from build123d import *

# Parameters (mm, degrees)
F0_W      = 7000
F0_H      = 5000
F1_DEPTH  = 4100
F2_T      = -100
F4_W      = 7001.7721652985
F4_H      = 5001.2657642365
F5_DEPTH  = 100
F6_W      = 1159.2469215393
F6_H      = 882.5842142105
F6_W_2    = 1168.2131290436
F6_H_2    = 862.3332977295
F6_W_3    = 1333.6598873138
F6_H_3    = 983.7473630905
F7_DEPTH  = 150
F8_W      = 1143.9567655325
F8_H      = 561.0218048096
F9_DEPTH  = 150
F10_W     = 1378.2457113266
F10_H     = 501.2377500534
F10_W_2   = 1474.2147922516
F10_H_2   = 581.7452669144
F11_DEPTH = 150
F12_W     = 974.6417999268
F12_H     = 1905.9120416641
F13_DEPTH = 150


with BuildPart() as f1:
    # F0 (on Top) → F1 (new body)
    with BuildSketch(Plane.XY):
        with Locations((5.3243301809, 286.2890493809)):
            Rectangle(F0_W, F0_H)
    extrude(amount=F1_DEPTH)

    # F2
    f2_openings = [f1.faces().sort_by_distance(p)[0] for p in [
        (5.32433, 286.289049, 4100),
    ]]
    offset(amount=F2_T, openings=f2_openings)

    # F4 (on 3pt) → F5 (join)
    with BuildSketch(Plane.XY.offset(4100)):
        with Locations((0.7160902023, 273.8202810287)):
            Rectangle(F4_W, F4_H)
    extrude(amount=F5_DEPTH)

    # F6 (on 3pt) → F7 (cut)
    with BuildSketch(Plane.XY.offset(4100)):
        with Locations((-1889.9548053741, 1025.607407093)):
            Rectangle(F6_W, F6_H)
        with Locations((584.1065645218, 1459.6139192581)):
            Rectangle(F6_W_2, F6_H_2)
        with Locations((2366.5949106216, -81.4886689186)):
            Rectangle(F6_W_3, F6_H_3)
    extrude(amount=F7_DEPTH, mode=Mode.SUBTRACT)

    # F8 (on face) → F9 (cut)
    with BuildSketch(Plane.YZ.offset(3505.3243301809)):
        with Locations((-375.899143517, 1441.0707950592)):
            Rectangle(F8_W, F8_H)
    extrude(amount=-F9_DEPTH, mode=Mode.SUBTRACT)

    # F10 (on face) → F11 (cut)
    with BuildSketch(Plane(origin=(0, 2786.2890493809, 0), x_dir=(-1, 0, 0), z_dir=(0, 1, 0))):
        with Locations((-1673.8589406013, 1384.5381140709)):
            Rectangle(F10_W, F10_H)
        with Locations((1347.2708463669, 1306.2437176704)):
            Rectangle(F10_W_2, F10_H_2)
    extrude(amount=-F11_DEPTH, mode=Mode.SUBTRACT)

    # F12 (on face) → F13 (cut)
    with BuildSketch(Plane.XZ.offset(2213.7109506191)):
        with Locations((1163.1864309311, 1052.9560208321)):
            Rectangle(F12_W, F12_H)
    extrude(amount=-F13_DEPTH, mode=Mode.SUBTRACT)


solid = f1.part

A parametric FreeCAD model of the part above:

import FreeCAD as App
import Part
import Sketcher

V = App.Vector


def faces_at(feature, points):
    """Names of the faces that lie closest to the given points."""
    faces = feature.Shape.Faces
    near = lambda p: min(range(len(faces)), key=lambda i: faces[i].distToShape(Part.Vertex(*p))[0])
    return sorted({f"Face{near(p) + 1}" for p in points})


def add_polygon(sketch, points):
    """Adds a closed chain of lines whose ends are joined by coincident constraints."""
    first, n = sketch.GeometryCount, len(points)
    for a, b in zip(points, points[1:] + points[:1]):
        sketch.addGeometry(Part.LineSegment(App.Vector(*a, 0), App.Vector(*b, 0)), False)
    for i in range(n):
        sketch.addConstraint(Sketcher.Constraint("Coincident", first + i, 2, first + (i + 1) % n, 1))

doc = App.newDocument("Part")
body = doc.addObject("PartDesign::Body", "Body")

# Sketch on XY plane
sketch1 = body.newObject("Sketcher::SketchObject", "Sketch")
sketch1.AttachmentSupport = (doc.getObject("XY_Plane"), [""])
sketch1.MapMode = "FlatFace"
add_polygon(sketch1, [(-3494.67567, 2786.289049), (-3494.67567, -2213.710951), (3505.32433, -2213.710951), (3505.32433, 2786.289049)])  # lines 0-3
sketch1.addConstraint([
    Sketcher.Constraint("Vertical", 0),
    Sketcher.Constraint("Horizontal", 1),
    Sketcher.Constraint("Vertical", 2),
    Sketcher.Constraint("Horizontal", 3),
    Sketcher.Constraint("DistanceX", 1, 1, 1, 2, 7000.0),
    Sketcher.Constraint("DistanceY", 0, 2, 0, 1, 5000.0),
    Sketcher.Constraint("DistanceX", 0, 2, -1, 1, 3494.67567),
    Sketcher.Constraint("DistanceY", 0, 2, -1, 1, 2213.710951),
])
pad1 = body.newObject("PartDesign::Pad", "Pad")
pad1.Profile = sketch1
pad1.Length = 4100
doc.recompute()

thickness = body.newObject("PartDesign::Thickness", "Thickness")
thickness.Base = (pad1, faces_at(pad1, [(5.324, 286.289, 4100)]))
thickness.Value = 100
thickness.Reversed = True
thickness.Join = "Arc"

# Sketch on XY plane
sketch2 = body.newObject("Sketcher::SketchObject", "Sketch001")
sketch2.AttachmentSupport = (doc.getObject("XY_Plane"), [""])
sketch2.MapMode = "FlatFace"
sketch2.AttachmentOffset = App.Placement(V(0, 0, 4100), App.Rotation())
add_polygon(sketch2, [(-3500.169992, 2774.453163), (-3500.169992, -2226.812601), (3501.602173, -2226.812601), (3501.602173, 2774.453163)])  # lines 0-3
sketch2.addConstraint([
    Sketcher.Constraint("Vertical", 0),
    Sketcher.Constraint("Horizontal", 1),
    Sketcher.Constraint("Vertical", 2),
    Sketcher.Constraint("Horizontal", 3),
    Sketcher.Constraint("DistanceY", 0, 2, -1, 1, 2226.812601),
    Sketcher.Constraint("DistanceX", 1, 1, 1, 2, 7001.772165),
    Sketcher.Constraint("DistanceY", 0, 2, 0, 1, 5001.265764),
    Sketcher.Constraint("DistanceX", 0, 2, -1, 1, 3500.169992),
])
pad2 = body.newObject("PartDesign::Pad", "Pad001")
pad2.Profile = sketch2
pad2.Length = 100

# Sketch on XY plane
sketch3 = body.newObject("Sketcher::SketchObject", "Sketch002")
sketch3.AttachmentSupport = (doc.getObject("XY_Plane"), [""])
sketch3.MapMode = "FlatFace"
sketch3.AttachmentOffset = App.Placement(V(0, 0, 4100), App.Rotation())
add_polygon(sketch3, [(-2469.578266, 1466.899514), (-2469.578266, 584.3153), (-1310.331345, 584.3153), (-1310.331345, 1466.899514)])  # lines 0-3
add_polygon(sketch3, [(0, 1890.780568), (0, 1028.44727), (1168.213129, 1028.44727), (1168.213129, 1890.780568)])  # lines 4-7
add_polygon(sketch3, [(1699.764967, 410.385013), (1699.764967, -573.36235), (3033.424854, -573.36235), (3033.424854, 410.385013)])  # lines 8-11
sketch3.addConstraint([
    Sketcher.Constraint("Vertical", 0),
    Sketcher.Constraint("Horizontal", 1),
    Sketcher.Constraint("Vertical", 2),
    Sketcher.Constraint("Horizontal", 3),
    Sketcher.Constraint("Vertical", 4),
    Sketcher.Constraint("Horizontal", 5),
    Sketcher.Constraint("Vertical", 6),
    Sketcher.Constraint("Horizontal", 7),
    Sketcher.Constraint("Vertical", 8),
    Sketcher.Constraint("Horizontal", 9),
    Sketcher.Constraint("Vertical", 10),
    Sketcher.Constraint("Horizontal", 11),
    Sketcher.Constraint("PointOnObject", 4, 2, -2),
    Sketcher.Constraint("DistanceX", 1, 1, 1, 2, 1159.246922),
    Sketcher.Constraint("DistanceX", 5, 1, 5, 2, 1168.213129),
    Sketcher.Constraint("DistanceY", -1, 1, 0, 2, 584.3153),
    Sketcher.Constraint("DistanceX", 9, 1, 9, 2, 1333.659887),
    Sketcher.Constraint("DistanceY", 0, 2, 0, 1, 882.584214),
    Sketcher.Constraint("DistanceY", 4, 2, 4, 1, 862.333298),
    Sketcher.Constraint("DistanceY", 8, 2, 8, 1, 983.747363),
    Sketcher.Constraint("DistanceY", -1, 1, 4, 2, 1028.44727),
    Sketcher.Constraint("DistanceY", 8, 2, -1, 1, 573.36235),
    Sketcher.Constraint("DistanceX", 1, 2, 8, 2, 3010.096312),
    Sketcher.Constraint("DistanceX", 0, 2, -1, 1, 2469.578266),
])
pocket1 = body.newObject("PartDesign::Pocket", "Pocket")
pocket1.Profile = sketch3
pocket1.Length = 150
pocket1.Reversed = True

# Sketch on YZ plane
sketch4 = body.newObject("Sketcher::SketchObject", "Sketch003")
sketch4.AttachmentSupport = (doc.getObject("YZ_Plane"), [""])
sketch4.MapMode = "FlatFace"
sketch4.AttachmentOffset = App.Placement(V(0, 0, 3505.32433), App.Rotation())
add_polygon(sketch4, [(-947.877526, 1721.581697), (-947.877526, 1160.559893), (196.079239, 1160.559893), (196.079239, 1721.581697)])  # lines 0-3
sketch4.addConstraint([
    Sketcher.Constraint("Vertical", 0),
    Sketcher.Constraint("Horizontal", 1),
    Sketcher.Constraint("Vertical", 2),
    Sketcher.Constraint("Horizontal", 3),
    Sketcher.Constraint("DistanceX", 1, 1, 1, 2, 1143.956766),
    Sketcher.Constraint("DistanceY", 0, 2, 0, 1, 561.021805),
    Sketcher.Constraint("DistanceX", -1, 1, 1, 2, 196.079239),
    Sketcher.Constraint("DistanceY", -1, 1, 0, 2, 1160.559893),
])
pocket2 = body.newObject("PartDesign::Pocket", "Pocket001")
pocket2.Profile = sketch4
pocket2.Length = 150

# Sketch on XZ plane
sketch5 = body.newObject("Sketcher::SketchObject", "Sketch004")
sketch5.AttachmentSupport = (doc.getObject("XZ_Plane"), [""])
sketch5.MapMode = "FlatFace"
sketch5.AttachmentOffset = App.Placement(V(0, 0, -2786.289049), App.Rotation())
add_polygon(sketch5, [(2362.981796, 1635.156989), (2362.981796, 1133.919239), (984.736085, 1133.919239), (984.736085, 1635.156989)])  # lines 0-3
add_polygon(sketch5, [(-610.16345, 1597.116351), (-610.16345, 1015.371084), (-2084.378242, 1015.371084), (-2084.378242, 1597.116351)])  # lines 4-7
sketch5.addConstraint([
    Sketcher.Constraint("Vertical", 0),
    Sketcher.Constraint("Horizontal", 1),
    Sketcher.Constraint("Vertical", 2),
    Sketcher.Constraint("Horizontal", 3),
    Sketcher.Constraint("Vertical", 4),
    Sketcher.Constraint("Horizontal", 5),
    Sketcher.Constraint("Vertical", 6),
    Sketcher.Constraint("Horizontal", 7),
    Sketcher.Constraint("DistanceX", 1, 2, 1, 1, 1378.245711),
    Sketcher.Constraint("DistanceY", 0, 2, 0, 1, 501.23775),
    Sketcher.Constraint("DistanceX", 5, 2, 5, 1, 1474.214792),
    Sketcher.Constraint("DistanceY", 4, 2, 4, 1, 581.745267),
    Sketcher.Constraint("DistanceY", -1, 1, 0, 2, 1133.919239),
    Sketcher.Constraint("DistanceX", 4, 2, -1, 1, 610.16345),
    Sketcher.Constraint("DistanceY", -1, 1, 6, 2, 1597.116351),
    Sketcher.Constraint("DistanceX", 5, 2, 0, 2, 4447.360039),
])
pocket3 = body.newObject("PartDesign::Pocket", "Pocket002")
pocket3.Profile = sketch5
pocket3.Length = 150
pocket3.Reversed = True

# Sketch on XZ plane
sketch6 = body.newObject("Sketcher::SketchObject", "Sketch005")
sketch6.AttachmentSupport = (doc.getObject("XZ_Plane"), [""])
sketch6.MapMode = "FlatFace"
sketch6.AttachmentOffset = App.Placement(V(0, 0, 2213.710951), App.Rotation())
add_polygon(sketch6, [(675.865531, 2005.912042), (675.865531, 100), (1650.507331, 100), (1650.507331, 2005.912042)])  # lines 0-3
sketch6.addConstraint([
    Sketcher.Constraint("Vertical", 0),
    Sketcher.Constraint("Horizontal", 1),
    Sketcher.Constraint("Vertical", 2),
    Sketcher.Constraint("Horizontal", 3),
    Sketcher.Constraint("DistanceY", -1, 1, 0, 2, 100.0),
    Sketcher.Constraint("DistanceX", 1, 1, 1, 2, 974.6418),
    Sketcher.Constraint("DistanceY", 0, 2, 0, 1, 1905.912042),
    Sketcher.Constraint("DistanceX", -1, 1, 0, 2, 675.865531),
])
pocket4 = body.newObject("PartDesign::Pocket", "Pocket003")
pocket4.Profile = sketch6
pocket4.Length = 150

doc.recompute()
